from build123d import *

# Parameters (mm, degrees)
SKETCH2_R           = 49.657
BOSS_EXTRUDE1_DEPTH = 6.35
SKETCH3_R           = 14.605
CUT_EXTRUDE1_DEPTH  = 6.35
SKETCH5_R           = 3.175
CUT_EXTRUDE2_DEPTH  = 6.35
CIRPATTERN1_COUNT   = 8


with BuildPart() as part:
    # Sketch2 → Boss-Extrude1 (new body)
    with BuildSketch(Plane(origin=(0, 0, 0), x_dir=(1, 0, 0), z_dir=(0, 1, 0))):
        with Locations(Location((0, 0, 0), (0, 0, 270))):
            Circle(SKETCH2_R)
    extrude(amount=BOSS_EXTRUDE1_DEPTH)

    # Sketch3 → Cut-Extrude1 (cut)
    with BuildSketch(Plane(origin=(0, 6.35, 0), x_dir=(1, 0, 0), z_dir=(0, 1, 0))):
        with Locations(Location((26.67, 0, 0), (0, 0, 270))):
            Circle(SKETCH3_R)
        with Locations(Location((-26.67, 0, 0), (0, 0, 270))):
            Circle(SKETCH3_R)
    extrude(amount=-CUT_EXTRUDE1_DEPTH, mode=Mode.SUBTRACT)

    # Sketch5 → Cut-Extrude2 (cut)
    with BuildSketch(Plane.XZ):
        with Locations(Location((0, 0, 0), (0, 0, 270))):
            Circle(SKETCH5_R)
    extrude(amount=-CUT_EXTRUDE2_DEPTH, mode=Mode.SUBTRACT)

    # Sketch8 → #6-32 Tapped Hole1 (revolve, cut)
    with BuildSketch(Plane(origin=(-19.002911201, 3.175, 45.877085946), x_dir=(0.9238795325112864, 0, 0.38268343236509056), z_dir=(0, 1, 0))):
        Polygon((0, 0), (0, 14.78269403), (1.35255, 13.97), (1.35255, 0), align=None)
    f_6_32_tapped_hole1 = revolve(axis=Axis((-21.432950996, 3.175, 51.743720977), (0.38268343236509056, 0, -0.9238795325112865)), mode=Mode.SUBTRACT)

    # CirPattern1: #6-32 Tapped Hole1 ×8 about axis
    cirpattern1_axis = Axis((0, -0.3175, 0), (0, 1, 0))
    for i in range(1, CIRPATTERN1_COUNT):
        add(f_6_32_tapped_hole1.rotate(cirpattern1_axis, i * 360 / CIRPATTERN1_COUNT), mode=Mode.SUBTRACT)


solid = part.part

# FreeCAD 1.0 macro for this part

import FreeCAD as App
import Part
import Sketcher

V = App.Vector
Q = App.Units.Quantity


def add_polygon(sketch, points):
    """Adds a closed chain of lines whose ends are joined by coincident constraints."""
    first, n = sketch.GeometryCount, len(points)
    for a, b in zip(points, points[1:] + points[:1]):
        sketch.addGeometry(Part.LineSegment(App.Vector(*a, 0), App.Vector(*b, 0)), False)
    for i in range(n):
        sketch.addConstraint(Sketcher.Constraint("Coincident", first + i, 2, first + (i + 1) % n, 1))

doc = App.newDocument("Part")
body = doc.addObject("PartDesign::Body", "Body")

# Sketch on XZ plane
sketch1 = body.newObject("Sketcher::SketchObject", "Sketch")
sketch1.AttachmentSupport = (doc.getObject("XZ_Plane"), [""])
sketch1.MapMode = "FlatFace"
sketch1.addGeometry(Part.Circle(V(0, 0, 0), V(0, 0, 1), 50), False)
sketch1.addConstraint([
    Sketcher.Constraint("Coincident", 0, 3, -1, 1),
    Sketcher.Constraint("Diameter", 0, Q("3.91 in")),
])
pad1 = body.newObject("PartDesign::Pad", "Pad")
pad1.Profile = sketch1
pad1.Length = Q("0.25 in")
pad1.Reversed = True

# Sketch on XZ plane
sketch2 = body.newObject("Sketcher::SketchObject", "Sketch001")
sketch2.AttachmentSupport = (doc.getObject("XZ_Plane"), [""])
sketch2.MapMode = "FlatFace"
sketch2.AttachmentOffset = App.Placement(V(0, 0, -0.25 * 25.4), App.Rotation())
sketch2.addGeometry([
    Part.Circle(V(27, 0, 0), V(0, 0, 1), 15),
    Part.Circle(V(-27, 0, 0), V(0, 0, 1), 15),
], False)
sketch2.addConstraint([
    Sketcher.Constraint("Equal", 0, 1),
    Sketcher.Constraint("Symmetric", 0, 3, 1, 3, -1, 1),
    Sketcher.Constraint("PointOnObject", 0, 3, -1),
    Sketcher.Constraint("Diameter", 0, Q("1.15 in")),
    Sketcher.Constraint("DistanceX", 1, 3, 0, 3, Q("2.1 in")),
])
pocket1 = body.newObject("PartDesign::Pocket", "Pocket")
pocket1.Profile = sketch2
pocket1.Length = Q("0.25 in")
pocket1.Reversed = True

# Sketch on XZ plane
sketch3 = body.newObject("Sketcher::SketchObject", "Sketch002")
sketch3.AttachmentSupport = (doc.getObject("XZ_Plane"), [""])
sketch3.MapMode = "FlatFace"
sketch3.addGeometry(Part.Circle(V(0, 0, 0), V(0, 0, 1), 3.2), False)
sketch3.addConstraint([
    Sketcher.Constraint("Coincident", 0, 3, -1, 1),
    Sketcher.Constraint("Diameter", 0, Q("0.25 in")),
])
pocket2 = body.newObject("PartDesign::Pocket", "Pocket001")
pocket2.Profile = sketch3
pocket2.Length = Q("0.25 in")

# Sketch on XZ plane
sketch4 = body.newObject("Sketcher::SketchObject", "Sketch003")
sketch4.AttachmentSupport = (doc.getObject("XZ_Plane"), [""])
sketch4.MapMode = "FlatFace"
sketch4.AttachmentOffset = App.Placement(V(0, 0, -0.125 * 25.4), App.Rotation())
add_polygon(sketch4, [(-13.3, 32.2), (-19, 45.9), (-17.8, 46.4), (-12.4, 33.5)])  # lines 0-3
sketch4.addGeometry(Part.LineSegment(V(-19, 45.9, 0), V(-13.3, 32.2, 0)), True)  # axis
sketch4.addConstraint([
    Sketcher.Constraint("Coincident", 4, 1, 0, 2),
    Sketcher.Constraint("Coincident", 4, 2, 3, 2),
    Sketcher.Constraint("Perpendicular", 0, 1),
    Sketcher.Constraint("Perpendicular", 1, 2),
    Sketcher.Constraint("Angle", 0, Q("112.5 deg")),
    Sketcher.Constraint("Angle", 3, Q("-126.5 deg")),
    Sketcher.Constraint("Distance", 2, Q("0.55 in")),
    Sketcher.Constraint("DistanceY", 0, 2, 1, 2, Q("0.517598 mm")),
    Sketcher.Constraint("DistanceX", 0, 2, -1, 1, Q("19.002911 mm")),
    Sketcher.Constraint("DistanceY", -1, 1, 0, 2, Q("45.877086 mm")),
])
groove = body.newObject("PartDesign::Groove", "Groove")
groove.Profile = sketch4
groove.ReferenceAxis = (sketch4, ["Axis0"])
groove.Angle = 360
doc.recompute()

polarpattern = body.newObject("PartDesign::PolarPattern", "PolarPattern")
polarpattern.Originals = [groove]
polarpattern.Axis = (doc.getObject("Y_Axis"), [""])
polarpattern.Angle = 360
polarpattern.Occurrences = 8
body.Tip = polarpattern

doc.recompute()
